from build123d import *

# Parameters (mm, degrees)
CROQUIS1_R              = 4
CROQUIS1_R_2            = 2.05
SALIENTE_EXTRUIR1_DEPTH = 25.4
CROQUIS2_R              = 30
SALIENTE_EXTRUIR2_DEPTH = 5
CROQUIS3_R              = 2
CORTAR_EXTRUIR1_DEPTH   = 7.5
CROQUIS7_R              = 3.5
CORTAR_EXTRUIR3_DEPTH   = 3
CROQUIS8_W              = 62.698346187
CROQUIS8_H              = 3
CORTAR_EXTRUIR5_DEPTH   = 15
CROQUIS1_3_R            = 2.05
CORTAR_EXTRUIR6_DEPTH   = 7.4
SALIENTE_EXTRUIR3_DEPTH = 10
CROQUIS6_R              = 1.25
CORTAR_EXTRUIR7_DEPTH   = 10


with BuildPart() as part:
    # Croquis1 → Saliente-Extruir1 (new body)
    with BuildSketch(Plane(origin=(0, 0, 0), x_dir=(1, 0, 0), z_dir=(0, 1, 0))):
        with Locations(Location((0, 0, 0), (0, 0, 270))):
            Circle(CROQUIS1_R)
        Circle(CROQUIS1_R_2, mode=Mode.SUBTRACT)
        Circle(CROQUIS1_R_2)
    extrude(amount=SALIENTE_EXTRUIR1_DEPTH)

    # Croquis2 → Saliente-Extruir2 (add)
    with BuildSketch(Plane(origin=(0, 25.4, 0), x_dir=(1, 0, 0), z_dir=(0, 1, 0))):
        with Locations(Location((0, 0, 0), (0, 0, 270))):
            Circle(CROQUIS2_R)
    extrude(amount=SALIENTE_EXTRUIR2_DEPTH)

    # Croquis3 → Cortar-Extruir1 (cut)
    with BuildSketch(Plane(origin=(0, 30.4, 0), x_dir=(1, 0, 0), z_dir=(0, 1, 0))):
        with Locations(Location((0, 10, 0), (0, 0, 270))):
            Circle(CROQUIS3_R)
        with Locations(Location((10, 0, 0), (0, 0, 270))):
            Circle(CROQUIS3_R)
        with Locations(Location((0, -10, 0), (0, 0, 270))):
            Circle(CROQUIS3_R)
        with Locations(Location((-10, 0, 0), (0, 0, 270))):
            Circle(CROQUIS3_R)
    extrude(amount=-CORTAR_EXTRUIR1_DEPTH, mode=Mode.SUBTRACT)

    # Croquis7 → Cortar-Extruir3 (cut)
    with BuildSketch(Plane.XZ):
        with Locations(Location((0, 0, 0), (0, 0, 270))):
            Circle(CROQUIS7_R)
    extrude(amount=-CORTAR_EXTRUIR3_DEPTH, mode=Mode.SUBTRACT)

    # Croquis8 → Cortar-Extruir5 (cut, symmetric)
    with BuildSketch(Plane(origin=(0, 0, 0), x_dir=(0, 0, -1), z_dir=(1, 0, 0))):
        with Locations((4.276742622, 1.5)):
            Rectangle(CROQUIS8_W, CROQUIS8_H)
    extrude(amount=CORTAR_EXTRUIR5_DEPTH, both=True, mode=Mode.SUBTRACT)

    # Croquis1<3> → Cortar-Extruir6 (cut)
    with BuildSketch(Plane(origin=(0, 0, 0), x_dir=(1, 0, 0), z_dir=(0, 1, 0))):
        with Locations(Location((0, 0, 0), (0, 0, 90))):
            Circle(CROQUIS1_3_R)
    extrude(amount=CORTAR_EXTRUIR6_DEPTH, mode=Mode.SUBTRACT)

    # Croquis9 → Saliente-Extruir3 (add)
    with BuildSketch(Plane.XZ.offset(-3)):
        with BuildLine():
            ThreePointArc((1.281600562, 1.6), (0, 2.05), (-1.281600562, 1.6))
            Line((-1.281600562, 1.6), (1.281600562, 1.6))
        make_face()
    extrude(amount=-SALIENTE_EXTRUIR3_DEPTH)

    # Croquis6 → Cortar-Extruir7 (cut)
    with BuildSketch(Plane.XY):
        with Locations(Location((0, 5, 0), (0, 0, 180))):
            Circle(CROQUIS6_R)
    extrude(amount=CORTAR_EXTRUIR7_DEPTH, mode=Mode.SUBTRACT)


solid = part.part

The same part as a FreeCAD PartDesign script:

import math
import FreeCAD as App
import Part
import Sketcher

V = App.Vector
Q = App.Units.Quantity


def add_polygon(sketch, points):
    """Adds a closed chain of lines whose ends are joined by coincident constraints."""
    first, n = sketch.GeometryCount, len(points)
    for a, b in zip(points, points[1:] + points[:1]):
        sketch.addGeometry(Part.LineSegment(App.Vector(*a, 0), App.Vector(*b, 0)), False)
    for i in range(n):
        sketch.addConstraint(Sketcher.Constraint("Coincident", first + i, 2, first + (i + 1) % n, 1))

doc = App.newDocument("Part")
body = doc.addObject("PartDesign::Body", "Body")

# Sketch on XZ plane
sketch1 = body.newObject("Sketcher::SketchObject", "Sketch")
sketch1.AttachmentSupport = (doc.getObject("XZ_Plane"), [""])
sketch1.MapMode = "FlatFace"
sketch1.addGeometry(Part.Circle(V(0, 0, 0), V(0, 0, 1), 4), False)
sketch1.addConstraint([
    Sketcher.Constraint("Coincident", 0, 3, -1, 1),
    Sketcher.Constraint("Diameter", 0, Q("8 mm")),
])
pad1 = body.newObject("PartDesign::Pad", "Pad")
pad1.Profile = sketch1
pad1.Length = 25.4
pad1.Reversed = True

# Sketch on XZ plane
sketch2 = body.newObject("Sketcher::SketchObject", "Sketch001")
sketch2.AttachmentSupport = (doc.getObject("XZ_Plane"), [""])
sketch2.MapMode = "FlatFace"
sketch2.AttachmentOffset = App.Placement(V(0, 0, -25.4), App.Rotation())
sketch2.addGeometry(Part.Circle(V(0, 0, 0), V(0, 0, 1), 30), False)
sketch2.addConstraint([
    Sketcher.Constraint("Coincident", 0, 3, -1, 1),
    Sketcher.Constraint("Diameter", 0, Q("60 mm")),
])
pad2 = body.newObject("PartDesign::Pad", "Pad001")
pad2.Profile = sketch2
pad2.Length = 5
pad2.Reversed = True

# Sketch on XZ plane
sketch3 = body.newObject("Sketcher::SketchObject", "Sketch002")
sketch3.AttachmentSupport = (doc.getObject("XZ_Plane"), [""])
sketch3.MapMode = "FlatFace"
sketch3.AttachmentOffset = App.Placement(V(0, 0, -30.4), App.Rotation())
sketch3.addGeometry([
    Part.Circle(V(0, -10, 0), V(0, 0, 1), 2),
    Part.Circle(V(10, 0, 0), V(0, 0, 1), 2),
    Part.Circle(V(0, 10, 0), V(0, 0, 1), 2),
    Part.Circle(V(-10, 0, 0), V(0, 0, 1), 2),
], False)
sketch3.addConstraint([
    Sketcher.Constraint("Equal", 0, 1),
    Sketcher.Constraint("Equal", 1, 2),
    Sketcher.Constraint("Equal", 2, 3),
    Sketcher.Constraint("Symmetric", 0, 3, 2, 3, -1, 1),
    Sketcher.Constraint("Symmetric", 1, 3, 3, 3, -1, 1),
    Sketcher.Constraint("PointOnObject", 0, 3, -2),
    Sketcher.Constraint("PointOnObject", 1, 3, -1),
    Sketcher.Constraint("Diameter", 0, Q("4 mm")),
    Sketcher.Constraint("DistanceY", 0, 3, -1, 1, Q("10 mm")),
    Sketcher.Constraint("DistanceX", -1, 1, 1, 3, Q("10 mm")),
])
pocket1 = body.newObject("PartDesign::Pocket", "Pocket")
pocket1.Profile = sketch3
pocket1.Length = 7.5
pocket1.Reversed = True

# Sketch on XZ plane
sketch4 = body.newObject("Sketcher::SketchObject", "Sketch003")
sketch4.AttachmentSupport = (doc.getObject("XZ_Plane"), [""])
sketch4.MapMode = "FlatFace"
sketch4.addGeometry(Part.Circle(V(0, 0, 0), V(0, 0, 1), 3.5), False)
sketch4.addConstraint([
    Sketcher.Constraint("Coincident", 0, 3, -1, 1),
    Sketcher.Constraint("Diameter", 0, Q("7 mm")),
])
pocket2 = body.newObject("PartDesign::Pocket", "Pocket001")
pocket2.Profile = sketch4
pocket2.Length = 3

# Sketch on YZ plane
sketch5 = body.newObject("Sketcher::SketchObject", "Sketch004")
sketch5.AttachmentSupport = (doc.getObject("YZ_Plane"), [""])
sketch5.MapMode = "FlatFace"
add_polygon(sketch5, [(3, 27.07243), (0, 27.07243), (0, -35.625916), (3, -35.625916)])  # lines 0-3
sketch5.addConstraint([
    Sketcher.Constraint("Horizontal", 0),
    Sketcher.Constraint("Vertical", 1),
    Sketcher.Constraint("Horizontal", 2),
    Sketcher.Constraint("Vertical", 3),
    Sketcher.Constraint("PointOnObject", 0, 2, -2),
    Sketcher.Constraint("DistanceX", 0, 2, 0, 1, Q("3 mm")),
    Sketcher.Constraint("DistanceY", 1, 2, 1, 1, Q("62.698346 mm")),
    Sketcher.Constraint("DistanceY", -1, 1, 0, 2, Q("27.07243 mm")),
])
pocket3 = body.newObject("PartDesign::Pocket", "Pocket002")
pocket3.Profile = sketch5
pocket3.Length = 30
pocket3.Midplane = True

# Sketch on XZ plane
sketch6 = body.newObject("Sketcher::SketchObject", "Sketch005")
sketch6.AttachmentSupport = (doc.getObject("XZ_Plane"), [""])
sketch6.MapMode = "FlatFace"
sketch6.addGeometry(Part.Circle(V(0, 0, 0), V(0, 0, 1), 2.05), False)
sketch6.addConstraint([
    Sketcher.Constraint("Coincident", 0, 3, -1, 1),
    Sketcher.Constraint("Diameter", 0, Q("4.1 mm")),
])
pocket4 = body.newObject("PartDesign::Pocket", "Pocket003")
pocket4.Profile = sketch6
pocket4.Length = 7.4

# Sketch on XZ plane
sketch7 = body.newObject("Sketcher::SketchObject", "Sketch006")
sketch7.AttachmentSupport = (doc.getObject("XZ_Plane"), [""])
sketch7.MapMode = "FlatFace"
sketch7.AttachmentOffset = App.Placement(V(0, 0, -3), App.Rotation())
sketch7.addGeometry([
    Part.ArcOfCircle(Part.Circle(V(0, 0, 0), V(0, 0, 1), 2.05), math.radians(51.30526), math.radians(128.69474)),
    Part.LineSegment(V(-1.281601, 1.6, 0), V(1.281601, 1.6, 0)),
], False)
sketch7.addConstraint([
    Sketcher.Constraint("Coincident", 0, 1, 1, 2),
    Sketcher.Constraint("Coincident", 1, 1, 0, 2),
    Sketcher.Constraint("Horizontal", 1),
    Sketcher.Constraint("Coincident", 0, 3, -1, 1),
    Sketcher.Constraint("Radius", 0, Q("2.05 mm")),
    Sketcher.Constraint("DistanceY", -1, 1, 0, 1, Q("1.6 mm")),
])
pad3 = body.newObject("PartDesign::Pad", "Pad002")
pad3.Profile = sketch7
pad3.Length = 10
pad3.Reversed = True

# Sketch on XY plane
sketch8 = body.newObject("Sketcher::SketchObject", "Sketch007")
sketch8.AttachmentSupport = (doc.getObject("XY_Plane"), [""])
sketch8.MapMode = "FlatFace"
sketch8.addGeometry(Part.Circle(V(0, 5, 0), V(0, 0, 1), 1.25), False)
sketch8.addConstraint([
    Sketcher.Constraint("PointOnObject", 0, 3, -2),
    Sketcher.Constraint("Diameter", 0, Q("2.5 mm")),
    Sketcher.Constraint("DistanceY", -1, 1, 0, 3, Q("5 mm")),
])
pocket5 = body.newObject("PartDesign::Pocket", "Pocket004")
pocket5.Profile = sketch8
pocket5.Length = 10
pocket5.Reversed = True

doc.recompute()
